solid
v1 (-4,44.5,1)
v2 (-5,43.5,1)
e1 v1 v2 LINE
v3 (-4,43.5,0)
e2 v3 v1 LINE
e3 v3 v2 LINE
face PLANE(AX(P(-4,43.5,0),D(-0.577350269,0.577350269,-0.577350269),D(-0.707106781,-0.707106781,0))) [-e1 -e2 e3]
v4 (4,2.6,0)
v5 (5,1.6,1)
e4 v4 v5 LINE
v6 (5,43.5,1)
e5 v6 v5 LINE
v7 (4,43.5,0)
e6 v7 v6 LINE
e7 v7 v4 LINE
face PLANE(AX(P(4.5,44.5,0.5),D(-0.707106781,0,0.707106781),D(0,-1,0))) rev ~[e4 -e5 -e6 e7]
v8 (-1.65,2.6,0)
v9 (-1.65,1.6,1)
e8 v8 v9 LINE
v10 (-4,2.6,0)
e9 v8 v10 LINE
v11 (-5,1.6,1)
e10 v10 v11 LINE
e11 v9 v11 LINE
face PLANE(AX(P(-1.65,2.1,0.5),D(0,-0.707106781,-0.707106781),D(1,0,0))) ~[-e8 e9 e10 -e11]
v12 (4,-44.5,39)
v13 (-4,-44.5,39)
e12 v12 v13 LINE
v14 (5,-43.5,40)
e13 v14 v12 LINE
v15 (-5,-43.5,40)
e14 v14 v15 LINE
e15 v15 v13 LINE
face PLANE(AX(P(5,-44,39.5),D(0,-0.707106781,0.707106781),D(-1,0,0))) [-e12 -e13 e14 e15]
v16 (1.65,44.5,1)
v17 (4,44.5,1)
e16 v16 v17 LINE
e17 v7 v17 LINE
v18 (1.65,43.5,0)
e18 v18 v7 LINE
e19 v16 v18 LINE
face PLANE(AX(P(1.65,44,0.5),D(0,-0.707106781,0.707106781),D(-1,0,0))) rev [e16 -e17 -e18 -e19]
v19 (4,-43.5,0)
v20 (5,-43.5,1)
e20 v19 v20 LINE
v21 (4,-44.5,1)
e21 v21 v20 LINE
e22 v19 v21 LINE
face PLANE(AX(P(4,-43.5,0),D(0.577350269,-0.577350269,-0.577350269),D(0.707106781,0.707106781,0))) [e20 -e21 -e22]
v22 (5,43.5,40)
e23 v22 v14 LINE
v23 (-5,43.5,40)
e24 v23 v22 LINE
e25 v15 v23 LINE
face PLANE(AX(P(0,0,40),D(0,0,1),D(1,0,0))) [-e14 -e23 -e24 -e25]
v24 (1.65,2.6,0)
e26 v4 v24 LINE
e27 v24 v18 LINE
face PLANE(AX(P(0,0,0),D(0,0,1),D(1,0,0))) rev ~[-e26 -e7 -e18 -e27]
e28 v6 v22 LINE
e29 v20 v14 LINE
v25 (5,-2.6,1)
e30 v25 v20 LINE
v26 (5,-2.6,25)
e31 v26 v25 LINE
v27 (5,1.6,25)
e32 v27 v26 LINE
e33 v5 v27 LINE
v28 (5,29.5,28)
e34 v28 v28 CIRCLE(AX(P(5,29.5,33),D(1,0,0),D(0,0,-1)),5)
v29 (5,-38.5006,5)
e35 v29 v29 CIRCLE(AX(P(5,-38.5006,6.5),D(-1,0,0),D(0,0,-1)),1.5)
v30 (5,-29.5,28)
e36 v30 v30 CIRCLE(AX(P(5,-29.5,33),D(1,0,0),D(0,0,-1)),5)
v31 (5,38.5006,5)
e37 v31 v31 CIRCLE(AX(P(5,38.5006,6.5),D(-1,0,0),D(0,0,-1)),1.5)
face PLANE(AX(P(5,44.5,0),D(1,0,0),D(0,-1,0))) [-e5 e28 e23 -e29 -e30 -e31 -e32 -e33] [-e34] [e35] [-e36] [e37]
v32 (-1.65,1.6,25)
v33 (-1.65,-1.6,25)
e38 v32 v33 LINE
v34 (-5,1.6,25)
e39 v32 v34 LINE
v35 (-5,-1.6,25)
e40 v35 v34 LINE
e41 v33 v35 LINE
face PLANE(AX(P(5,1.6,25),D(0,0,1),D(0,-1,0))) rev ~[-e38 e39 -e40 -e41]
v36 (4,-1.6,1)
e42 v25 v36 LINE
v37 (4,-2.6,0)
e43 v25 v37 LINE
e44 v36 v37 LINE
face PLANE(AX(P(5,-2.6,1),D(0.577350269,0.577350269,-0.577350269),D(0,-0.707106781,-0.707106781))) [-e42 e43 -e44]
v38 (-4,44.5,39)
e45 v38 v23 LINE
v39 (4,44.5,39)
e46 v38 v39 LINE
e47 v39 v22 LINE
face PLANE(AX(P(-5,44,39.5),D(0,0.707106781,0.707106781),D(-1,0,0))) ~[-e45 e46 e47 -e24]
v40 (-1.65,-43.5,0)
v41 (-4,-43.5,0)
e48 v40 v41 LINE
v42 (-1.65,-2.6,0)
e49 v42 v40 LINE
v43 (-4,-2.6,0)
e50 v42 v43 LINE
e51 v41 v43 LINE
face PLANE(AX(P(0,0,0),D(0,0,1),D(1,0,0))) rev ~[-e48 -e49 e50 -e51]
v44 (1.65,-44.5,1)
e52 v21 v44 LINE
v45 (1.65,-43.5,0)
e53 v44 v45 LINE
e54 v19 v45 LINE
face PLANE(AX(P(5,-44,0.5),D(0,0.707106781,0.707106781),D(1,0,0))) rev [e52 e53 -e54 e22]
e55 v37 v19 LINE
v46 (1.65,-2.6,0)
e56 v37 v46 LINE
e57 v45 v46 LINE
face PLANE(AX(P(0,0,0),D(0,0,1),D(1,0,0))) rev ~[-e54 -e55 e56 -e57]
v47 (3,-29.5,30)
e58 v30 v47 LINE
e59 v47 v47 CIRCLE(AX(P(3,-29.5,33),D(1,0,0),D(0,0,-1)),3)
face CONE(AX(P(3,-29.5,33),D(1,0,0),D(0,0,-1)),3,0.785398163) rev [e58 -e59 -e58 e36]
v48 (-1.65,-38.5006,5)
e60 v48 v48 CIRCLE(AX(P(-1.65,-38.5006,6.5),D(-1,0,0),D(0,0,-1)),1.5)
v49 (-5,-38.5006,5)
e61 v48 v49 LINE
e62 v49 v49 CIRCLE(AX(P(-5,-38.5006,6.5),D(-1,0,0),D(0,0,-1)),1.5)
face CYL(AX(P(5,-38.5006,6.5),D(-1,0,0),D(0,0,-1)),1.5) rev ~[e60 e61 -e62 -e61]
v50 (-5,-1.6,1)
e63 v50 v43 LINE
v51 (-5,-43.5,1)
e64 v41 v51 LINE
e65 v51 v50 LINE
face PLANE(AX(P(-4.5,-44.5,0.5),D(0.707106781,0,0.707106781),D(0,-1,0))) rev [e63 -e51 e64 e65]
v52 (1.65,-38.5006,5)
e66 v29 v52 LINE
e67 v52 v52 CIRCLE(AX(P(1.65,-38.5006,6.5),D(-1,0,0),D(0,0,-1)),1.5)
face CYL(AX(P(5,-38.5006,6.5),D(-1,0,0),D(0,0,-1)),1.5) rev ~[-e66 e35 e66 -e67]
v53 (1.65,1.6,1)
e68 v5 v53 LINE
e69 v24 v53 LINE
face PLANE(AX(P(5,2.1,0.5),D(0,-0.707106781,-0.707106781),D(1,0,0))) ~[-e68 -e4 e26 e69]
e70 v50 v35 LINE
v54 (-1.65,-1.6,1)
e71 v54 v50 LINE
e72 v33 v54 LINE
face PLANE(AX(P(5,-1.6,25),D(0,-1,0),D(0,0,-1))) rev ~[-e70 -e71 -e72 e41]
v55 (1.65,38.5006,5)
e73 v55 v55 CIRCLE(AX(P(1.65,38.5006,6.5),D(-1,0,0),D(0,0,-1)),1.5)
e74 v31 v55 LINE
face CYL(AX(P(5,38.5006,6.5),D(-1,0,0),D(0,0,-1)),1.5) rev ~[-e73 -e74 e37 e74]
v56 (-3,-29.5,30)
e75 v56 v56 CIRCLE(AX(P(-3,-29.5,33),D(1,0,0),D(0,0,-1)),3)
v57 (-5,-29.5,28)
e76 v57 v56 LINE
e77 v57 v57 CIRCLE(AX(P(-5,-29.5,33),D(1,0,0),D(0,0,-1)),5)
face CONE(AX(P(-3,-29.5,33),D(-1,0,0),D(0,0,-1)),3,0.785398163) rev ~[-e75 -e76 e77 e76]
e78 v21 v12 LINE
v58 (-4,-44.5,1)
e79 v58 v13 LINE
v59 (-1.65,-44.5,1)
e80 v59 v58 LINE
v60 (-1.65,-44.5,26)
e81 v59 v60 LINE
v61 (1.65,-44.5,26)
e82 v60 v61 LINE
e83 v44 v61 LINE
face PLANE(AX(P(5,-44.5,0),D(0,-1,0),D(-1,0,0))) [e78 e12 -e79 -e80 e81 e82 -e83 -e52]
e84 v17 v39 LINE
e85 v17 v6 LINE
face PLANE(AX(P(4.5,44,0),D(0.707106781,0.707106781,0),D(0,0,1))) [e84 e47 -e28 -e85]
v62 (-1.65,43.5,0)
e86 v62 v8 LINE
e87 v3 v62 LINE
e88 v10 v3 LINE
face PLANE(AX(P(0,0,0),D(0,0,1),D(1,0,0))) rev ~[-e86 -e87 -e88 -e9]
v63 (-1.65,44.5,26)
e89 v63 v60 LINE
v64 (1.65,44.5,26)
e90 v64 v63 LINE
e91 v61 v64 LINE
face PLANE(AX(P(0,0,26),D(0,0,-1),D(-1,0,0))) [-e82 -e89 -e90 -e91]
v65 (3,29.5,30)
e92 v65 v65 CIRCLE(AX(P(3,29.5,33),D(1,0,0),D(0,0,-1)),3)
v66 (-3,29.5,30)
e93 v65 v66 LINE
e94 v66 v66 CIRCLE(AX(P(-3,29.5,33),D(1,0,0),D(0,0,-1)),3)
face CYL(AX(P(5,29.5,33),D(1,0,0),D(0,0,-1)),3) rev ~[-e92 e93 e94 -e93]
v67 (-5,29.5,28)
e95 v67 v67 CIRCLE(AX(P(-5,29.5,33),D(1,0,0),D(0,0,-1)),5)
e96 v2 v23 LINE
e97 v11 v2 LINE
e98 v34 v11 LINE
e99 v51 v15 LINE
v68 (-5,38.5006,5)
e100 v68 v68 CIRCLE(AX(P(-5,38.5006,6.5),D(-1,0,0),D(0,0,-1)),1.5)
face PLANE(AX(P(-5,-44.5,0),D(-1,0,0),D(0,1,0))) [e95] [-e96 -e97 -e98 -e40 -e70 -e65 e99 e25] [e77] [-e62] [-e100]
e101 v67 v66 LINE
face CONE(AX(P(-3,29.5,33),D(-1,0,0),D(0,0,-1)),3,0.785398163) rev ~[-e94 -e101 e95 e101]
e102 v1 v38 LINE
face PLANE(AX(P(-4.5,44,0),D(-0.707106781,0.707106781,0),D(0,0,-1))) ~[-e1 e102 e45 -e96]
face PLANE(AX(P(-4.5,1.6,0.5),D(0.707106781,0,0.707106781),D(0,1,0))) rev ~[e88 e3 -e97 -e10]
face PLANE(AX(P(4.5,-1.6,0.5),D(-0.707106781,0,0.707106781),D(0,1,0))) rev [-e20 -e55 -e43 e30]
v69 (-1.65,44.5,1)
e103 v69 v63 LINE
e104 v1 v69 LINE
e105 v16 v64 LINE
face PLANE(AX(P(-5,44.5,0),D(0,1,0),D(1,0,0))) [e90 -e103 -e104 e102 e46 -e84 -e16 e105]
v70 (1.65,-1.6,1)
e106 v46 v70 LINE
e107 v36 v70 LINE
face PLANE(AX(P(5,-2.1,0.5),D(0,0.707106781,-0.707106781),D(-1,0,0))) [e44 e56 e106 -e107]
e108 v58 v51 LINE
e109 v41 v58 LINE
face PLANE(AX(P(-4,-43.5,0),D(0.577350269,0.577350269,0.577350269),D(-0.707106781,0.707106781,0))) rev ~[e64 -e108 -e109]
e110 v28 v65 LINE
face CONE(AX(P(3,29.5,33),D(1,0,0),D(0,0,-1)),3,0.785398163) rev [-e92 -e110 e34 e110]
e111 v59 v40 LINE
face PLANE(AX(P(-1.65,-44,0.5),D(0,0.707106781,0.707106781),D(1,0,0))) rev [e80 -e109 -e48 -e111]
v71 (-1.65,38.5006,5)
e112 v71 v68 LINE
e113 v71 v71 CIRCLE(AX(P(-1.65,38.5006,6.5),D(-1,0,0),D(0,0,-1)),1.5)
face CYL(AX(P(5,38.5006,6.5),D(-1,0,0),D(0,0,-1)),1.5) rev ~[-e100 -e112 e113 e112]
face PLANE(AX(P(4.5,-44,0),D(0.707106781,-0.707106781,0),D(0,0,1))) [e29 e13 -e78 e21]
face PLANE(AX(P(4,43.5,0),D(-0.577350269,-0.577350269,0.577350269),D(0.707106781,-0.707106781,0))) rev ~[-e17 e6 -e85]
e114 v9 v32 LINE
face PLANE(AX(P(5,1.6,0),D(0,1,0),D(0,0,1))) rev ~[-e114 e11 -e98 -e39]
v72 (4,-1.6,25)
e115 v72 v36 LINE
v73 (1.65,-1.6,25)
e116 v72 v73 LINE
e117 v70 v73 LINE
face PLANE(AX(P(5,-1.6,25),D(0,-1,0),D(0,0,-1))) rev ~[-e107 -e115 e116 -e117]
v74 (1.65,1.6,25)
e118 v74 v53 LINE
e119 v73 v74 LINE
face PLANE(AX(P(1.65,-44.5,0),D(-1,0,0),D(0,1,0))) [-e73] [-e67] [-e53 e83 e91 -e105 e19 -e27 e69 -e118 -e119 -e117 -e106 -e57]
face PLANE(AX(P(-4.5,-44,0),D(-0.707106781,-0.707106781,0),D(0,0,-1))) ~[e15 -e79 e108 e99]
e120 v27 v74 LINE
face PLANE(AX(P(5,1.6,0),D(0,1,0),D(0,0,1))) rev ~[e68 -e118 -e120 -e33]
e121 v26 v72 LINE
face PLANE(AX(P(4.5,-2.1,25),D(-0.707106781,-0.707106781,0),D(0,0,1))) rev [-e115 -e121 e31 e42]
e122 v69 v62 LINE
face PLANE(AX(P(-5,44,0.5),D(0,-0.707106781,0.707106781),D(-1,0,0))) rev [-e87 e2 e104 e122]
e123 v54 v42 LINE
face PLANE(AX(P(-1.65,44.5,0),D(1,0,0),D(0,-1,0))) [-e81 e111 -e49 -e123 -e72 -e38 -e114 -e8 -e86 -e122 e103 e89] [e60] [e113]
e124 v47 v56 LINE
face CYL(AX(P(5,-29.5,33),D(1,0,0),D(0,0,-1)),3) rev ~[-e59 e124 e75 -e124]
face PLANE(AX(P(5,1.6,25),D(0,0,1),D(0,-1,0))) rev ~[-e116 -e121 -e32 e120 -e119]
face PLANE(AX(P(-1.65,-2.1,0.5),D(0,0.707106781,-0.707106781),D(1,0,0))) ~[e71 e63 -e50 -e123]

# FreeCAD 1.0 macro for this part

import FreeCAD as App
import Part
import Sketcher
from FreeCAD import Vector


def edges_at(feature, points):
    """Names of the edges that pass closest to the given points."""
    edges = feature.Shape.Edges
    near = lambda p: min(range(len(edges)), key=lambda i: edges[i].distToShape(Part.Vertex(*p))[0])
    return sorted({f"Edge{near(p) + 1}" for p in points})


def add_polygon(sketch, points):
    """Adds a closed chain of lines whose ends are joined by coincident constraints."""
    first, n = sketch.GeometryCount, len(points)
    for a, b in zip(points, points[1:] + points[:1]):
        sketch.addGeometry(Part.LineSegment(App.Vector(*a, 0), App.Vector(*b, 0)), False)
    for i in range(n):
        sketch.addConstraint(Sketcher.Constraint("Coincident", first + i, 2, first + (i + 1) % n, 1))

doc = App.newDocument("Part")
body = doc.addObject("PartDesign::Body", "Body")

# Sketch on XY plane
sketch1 = body.newObject("Sketcher::SketchObject", "Sketch")
sketch1.AttachmentSupport = (doc.getObject("XY_Plane"), [""])
sketch1.MapMode = "FlatFace"
add_polygon(sketch1, [(5, 44), (-5, 44), (-5, -44), (5, -44)])  # lines 0-3
sketch1.addConstraint(Sketcher.Constraint("Horizontal", 0))
sketch1.addConstraint(Sketcher.Constraint("Vertical", 1))
sketch1.addConstraint(Sketcher.Constraint("Horizontal", 2))
sketch1.addConstraint(Sketcher.Constraint("Vertical", 3))
sketch1.addConstraint(Sketcher.Constraint("Symmetric", 0, 2, 2, 2, -1, 1))
sketch1.addConstraint(Sketcher.Constraint("DistanceX", 0, 2, 0, 1, 10.0))
sketch1.addConstraint(Sketcher.Constraint("DistanceY", 1, 2, 1, 1, 89.0))
pad1 = body.newObject("PartDesign::Pad", "Pad")
pad1.Profile = sketch1
pad1.Length = 40

# Sketch on XY plane
sketch2 = body.newObject("Sketcher::SketchObject", "Sketch001")
sketch2.AttachmentSupport = (doc.getObject("XY_Plane"), [""])
sketch2.MapMode = "FlatFace"
add_polygon(sketch2, [(1.6, -44.5), (-1.6, -44.5), (-1.6, 44.5), (1.6, 44.5)])  # lines 0-3
sketch2.addConstraint(Sketcher.Constraint("Horizontal", 0))
sketch2.addConstraint(Sketcher.Constraint("Vertical", 1))
sketch2.addConstraint(Sketcher.Constraint("Horizontal", 2))
sketch2.addConstraint(Sketcher.Constraint("Vertical", 3))
sketch2.addConstraint(Sketcher.Constraint("Symmetric", 0, 2, 2, 2, -1, 1))
sketch2.addConstraint(Sketcher.Constraint("DistanceX", 0, 2, 0, 1, 3.3))
sketch2.addConstraint(Sketcher.Constraint("DistanceY", 1, 1, 1, 2, 89.0))
pocket1 = body.newObject("PartDesign::Pocket", "Pocket")
pocket1.Profile = sketch2
pocket1.Length = 26
pocket1.Reversed = True

# Sketch on YZ plane
sketch3 = body.newObject("Sketcher::SketchObject", "Sketch002")
sketch3.AttachmentSupport = (doc.getObject("YZ_Plane"), [""])
sketch3.MapMode = "FlatFace"
sketch3.AttachmentOffset = App.Placement(Vector(0, 0, 5), App.Rotation())
add_polygon(sketch3, [(1.6, 25), (-1.6, 25), (-1.6, 0), (1.6, 0)])  # lines 0-3
sketch3.addConstraint(Sketcher.Constraint("Horizontal", 0))
sketch3.addConstraint(Sketcher.Constraint("Vertical", 1))
sketch3.addConstraint(Sketcher.Constraint("Horizontal", 2))
sketch3.addConstraint(Sketcher.Constraint("Vertical", 3))
sketch3.addConstraint(Sketcher.Constraint("Symmetric", 1, 2, 2, 2, -1, 1))
sketch3.addConstraint(Sketcher.Constraint("DistanceY", 1, 2, 1, 1, 25.0))
sketch3.addConstraint(Sketcher.Constraint("DistanceX", 0, 2, 0, 1, 3.2))
pocket2 = body.newObject("PartDesign::Pocket", "Pocket001")
pocket2.Profile = sketch3
pocket2.Length = 16

# Sketch on YZ plane
sketch4 = body.newObject("Sketcher::SketchObject", "Sketch003")
sketch4.AttachmentSupport = (doc.getObject("YZ_Plane"), [""])
sketch4.MapMode = "FlatFace"
sketch4.AttachmentOffset = App.Placement(Vector(0, 0, 5), App.Rotation())
sketch4.addGeometry(Part.Circle(Vector(0, 6.5, 0), Vector(0, 0, 1), 1.5), False)
sketch4.addGeometry(Part.Circle(Vector(-38.5, 6.5, 0), Vector(0, 0, 1), 1.5), False)
sketch4.addGeometry(Part.Circle(Vector(38.5, 6.5, 0), Vector(0, 0, 1), 1.5), False)
sketch4.addConstraint(Sketcher.Constraint("Equal", 0, 1))
sketch4.addConstraint(Sketcher.Constraint("Equal", 1, 2))
sketch4.addConstraint(Sketcher.Constraint("Symmetric", 1, 3, 2, 3, -2))
sketch4.addConstraint(Sketcher.Constraint("PointOnObject", 0, 3, -2))
sketch4.addConstraint(Sketcher.Constraint("Horizontal", 0, 3, 1, 3))
sketch4.addConstraint(Sketcher.Constraint("Diameter", 0, 3.0))
sketch4.addConstraint(Sketcher.Constraint("DistanceY", -1, 1, 0, 3, 6.5))
sketch4.addConstraint(Sketcher.Constraint("DistanceX", 1, 3, -1, 1, 38.5006))
doc.recompute()
hole = body.newObject("PartDesign::Hole", "Hole")
hole.Profile = sketch4
hole.ThreadType = "None"
hole.Diameter = 3
hole.DepthType = "Dimension"
hole.Depth = 26.75
hole.DrillPoint = "Flat"
doc.recompute()

chamfer = body.newObject("PartDesign::Chamfer", "Chamfer")
chamfer.Base = (hole, edges_at(hole, [
    (5, -44.5, 20),
    (-5, -44.5, 20),
    (5, 44.5, 20),
    (-5, 44.5, 20),
    (-3.325, -44.5, 0),
    (3.325, -44.5, 0),
    (-3.325, 44.5, 0),
    (3.325, 44.5, 0),
    (3.325, -1.6, 0),
    (3.325, 1.6, 0),
    (-3.325, 1.6, 0),
    (-3.325, -1.6, 0),
    (-5, -23.05, 0),
    (5, -1.6, 12.5),
    (5, -23.05, 0),
    (5, 23.05, 0),
    (-5, 23.05, 0),
    (0, 44.5, 40),
    (0, -44.5, 40),
]))
chamfer.Size = 1

# Sketch on YZ plane
sketch5 = body.newObject("Sketcher::SketchObject", "Sketch004")
sketch5.AttachmentSupport = (doc.getObject("YZ_Plane"), [""])
sketch5.MapMode = "FlatFace"
sketch5.AttachmentOffset = App.Placement(Vector(0, 0, 5), App.Rotation())
sketch5.addGeometry(Part.Circle(Vector(-29.5, 33, 0), Vector(0, 0, 1), 3), False)
sketch5.addGeometry(Part.Circle(Vector(29.5, 33, 0), Vector(0, 0, 1), 3), False)
sketch5.addConstraint(Sketcher.Constraint("Equal", 0, 1))
sketch5.addConstraint(Sketcher.Constraint("Symmetric", 0, 3, 1, 3, -2))
sketch5.addConstraint(Sketcher.Constraint("Diameter", 0, 6.0))
sketch5.addConstraint(Sketcher.Constraint("DistanceY", -1, 1, 0, 3, 33.0))
sketch5.addConstraint(Sketcher.Constraint("DistanceX", 0, 3, 1, 3, 59.0))
pocket3 = body.newObject("PartDesign::Pocket", "Pocket002")
pocket3.Profile = sketch5
pocket3.Length = 10
doc.recompute()

chamfer2 = body.newObject("PartDesign::Chamfer", "Chamfer001")
chamfer2.Base = (pocket3, edges_at(pocket3, [
    (-5, -29.5, 36),
    (-5, 29.5, 36),
    (5, 29.5, 36),
    (5, -29.5, 36),
]))
chamfer2.Size = 2

doc.recompute()
